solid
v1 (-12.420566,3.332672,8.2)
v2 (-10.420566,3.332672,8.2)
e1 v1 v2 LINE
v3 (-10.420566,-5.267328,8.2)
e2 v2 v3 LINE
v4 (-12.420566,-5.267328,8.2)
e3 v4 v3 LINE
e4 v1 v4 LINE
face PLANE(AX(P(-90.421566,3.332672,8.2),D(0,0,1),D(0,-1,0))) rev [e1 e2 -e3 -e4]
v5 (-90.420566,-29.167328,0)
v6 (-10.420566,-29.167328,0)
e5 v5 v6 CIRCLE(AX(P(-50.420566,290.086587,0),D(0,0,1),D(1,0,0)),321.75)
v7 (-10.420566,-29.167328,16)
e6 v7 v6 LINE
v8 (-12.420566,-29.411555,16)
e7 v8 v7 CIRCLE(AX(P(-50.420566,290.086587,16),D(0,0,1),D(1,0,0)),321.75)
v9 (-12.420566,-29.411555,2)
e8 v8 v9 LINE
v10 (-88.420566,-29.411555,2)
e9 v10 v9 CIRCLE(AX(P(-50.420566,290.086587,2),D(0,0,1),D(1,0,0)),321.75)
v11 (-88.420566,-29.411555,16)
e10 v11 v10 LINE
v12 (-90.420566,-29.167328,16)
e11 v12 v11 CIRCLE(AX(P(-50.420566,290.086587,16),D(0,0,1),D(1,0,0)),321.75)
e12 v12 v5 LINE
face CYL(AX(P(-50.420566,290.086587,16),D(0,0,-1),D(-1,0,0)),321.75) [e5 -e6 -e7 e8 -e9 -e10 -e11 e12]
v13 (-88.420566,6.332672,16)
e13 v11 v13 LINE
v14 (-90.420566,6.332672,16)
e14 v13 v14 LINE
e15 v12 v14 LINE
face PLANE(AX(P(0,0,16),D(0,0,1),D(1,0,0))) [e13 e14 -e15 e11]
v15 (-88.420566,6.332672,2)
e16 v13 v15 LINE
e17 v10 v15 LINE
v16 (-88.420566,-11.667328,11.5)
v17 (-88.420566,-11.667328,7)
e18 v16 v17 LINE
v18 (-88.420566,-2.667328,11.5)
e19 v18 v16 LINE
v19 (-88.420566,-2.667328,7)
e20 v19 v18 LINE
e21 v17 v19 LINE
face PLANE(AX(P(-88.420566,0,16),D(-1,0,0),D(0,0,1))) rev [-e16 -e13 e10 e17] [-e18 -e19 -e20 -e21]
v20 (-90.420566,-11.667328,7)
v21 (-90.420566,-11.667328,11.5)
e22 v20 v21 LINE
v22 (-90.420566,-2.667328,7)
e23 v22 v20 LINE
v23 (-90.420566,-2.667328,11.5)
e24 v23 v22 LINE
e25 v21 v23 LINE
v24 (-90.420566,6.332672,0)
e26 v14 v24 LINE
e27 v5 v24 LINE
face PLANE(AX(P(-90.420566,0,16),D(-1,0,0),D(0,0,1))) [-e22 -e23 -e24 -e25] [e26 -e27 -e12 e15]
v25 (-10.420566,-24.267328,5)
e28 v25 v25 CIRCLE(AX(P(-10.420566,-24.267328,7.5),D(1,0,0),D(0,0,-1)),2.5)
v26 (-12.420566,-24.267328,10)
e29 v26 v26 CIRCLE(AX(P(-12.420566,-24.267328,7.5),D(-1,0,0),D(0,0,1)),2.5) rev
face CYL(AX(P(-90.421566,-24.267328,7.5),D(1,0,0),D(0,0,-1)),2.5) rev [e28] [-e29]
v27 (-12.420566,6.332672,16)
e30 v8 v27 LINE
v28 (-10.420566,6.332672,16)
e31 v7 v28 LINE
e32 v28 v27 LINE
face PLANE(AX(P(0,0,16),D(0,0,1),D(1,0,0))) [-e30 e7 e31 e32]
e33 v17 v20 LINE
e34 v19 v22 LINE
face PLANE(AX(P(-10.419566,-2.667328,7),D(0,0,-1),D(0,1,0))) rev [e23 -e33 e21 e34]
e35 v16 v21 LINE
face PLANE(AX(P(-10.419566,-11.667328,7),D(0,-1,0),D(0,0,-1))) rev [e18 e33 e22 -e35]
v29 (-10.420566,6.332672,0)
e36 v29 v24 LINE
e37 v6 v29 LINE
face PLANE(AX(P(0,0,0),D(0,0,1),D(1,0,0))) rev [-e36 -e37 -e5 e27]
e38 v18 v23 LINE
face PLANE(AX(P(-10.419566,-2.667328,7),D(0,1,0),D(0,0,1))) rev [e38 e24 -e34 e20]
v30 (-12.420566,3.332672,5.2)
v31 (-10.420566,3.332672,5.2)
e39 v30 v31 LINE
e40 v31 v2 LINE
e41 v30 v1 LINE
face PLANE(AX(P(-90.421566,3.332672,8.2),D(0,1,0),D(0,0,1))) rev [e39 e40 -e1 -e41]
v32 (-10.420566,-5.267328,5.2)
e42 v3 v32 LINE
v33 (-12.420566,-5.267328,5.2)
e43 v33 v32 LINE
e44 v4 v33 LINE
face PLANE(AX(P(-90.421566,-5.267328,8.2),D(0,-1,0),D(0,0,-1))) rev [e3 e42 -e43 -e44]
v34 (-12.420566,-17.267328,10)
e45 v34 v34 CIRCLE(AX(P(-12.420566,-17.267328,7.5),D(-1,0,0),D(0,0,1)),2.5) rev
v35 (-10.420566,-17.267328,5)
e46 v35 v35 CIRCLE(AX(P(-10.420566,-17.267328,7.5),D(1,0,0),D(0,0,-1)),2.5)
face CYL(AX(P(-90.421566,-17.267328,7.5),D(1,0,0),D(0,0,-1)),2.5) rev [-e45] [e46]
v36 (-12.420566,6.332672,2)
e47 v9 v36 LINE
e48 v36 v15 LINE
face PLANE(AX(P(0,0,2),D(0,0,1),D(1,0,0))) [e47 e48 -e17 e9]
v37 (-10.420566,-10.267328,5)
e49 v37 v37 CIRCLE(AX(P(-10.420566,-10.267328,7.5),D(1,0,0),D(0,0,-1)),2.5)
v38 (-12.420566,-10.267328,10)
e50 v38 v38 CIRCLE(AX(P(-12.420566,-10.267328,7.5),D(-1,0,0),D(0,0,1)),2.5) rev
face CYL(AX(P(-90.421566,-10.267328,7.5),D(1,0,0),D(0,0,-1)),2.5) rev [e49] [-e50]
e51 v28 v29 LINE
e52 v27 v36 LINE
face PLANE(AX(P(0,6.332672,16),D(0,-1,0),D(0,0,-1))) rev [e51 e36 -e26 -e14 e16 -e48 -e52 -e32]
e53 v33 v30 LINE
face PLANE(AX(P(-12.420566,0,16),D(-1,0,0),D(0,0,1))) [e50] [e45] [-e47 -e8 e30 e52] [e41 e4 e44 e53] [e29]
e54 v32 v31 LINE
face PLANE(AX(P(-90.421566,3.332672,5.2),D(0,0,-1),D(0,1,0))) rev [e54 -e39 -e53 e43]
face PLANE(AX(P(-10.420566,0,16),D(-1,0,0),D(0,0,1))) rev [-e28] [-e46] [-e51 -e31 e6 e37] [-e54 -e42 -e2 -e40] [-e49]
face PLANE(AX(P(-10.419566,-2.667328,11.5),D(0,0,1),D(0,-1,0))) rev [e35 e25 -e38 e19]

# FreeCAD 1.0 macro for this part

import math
import FreeCAD as App
import Part
import Sketcher
from FreeCAD import Vector
Q = App.Units.Quantity


def faces_at(feature, points):
    """Names of the faces that lie closest to the given points."""
    faces = feature.Shape.Faces
    near = lambda p: min(range(len(faces)), key=lambda i: faces[i].distToShape(Part.Vertex(*p))[0])
    return sorted({f"Face{near(p) + 1}" for p in points})

doc = App.newDocument("Part")
body = doc.addObject("PartDesign::Body", "Body")

sketch1 = body.newObject("Sketcher::SketchObject", "Sketch")
sketch1.AttachmentSupport = (doc.getObject("XY_Plane"), [""])
sketch1.MapMode = "FlatFace"
sketch1.addGeometry(Part.LineSegment(Vector(-90.420566, 6.332672, 0), Vector(-90.420566, -29.167328, 0)), False)
sketch1.addGeometry(Part.ArcOfCircle(Part.Circle(Vector(-50.420566, 290.086587, 0), Vector(0, 0, 1), 321.75), math.radians(-97.141496), math.radians(-82.858504)), False)
sketch1.addGeometry(Part.LineSegment(Vector(-10.420566, -29.167328, 0), Vector(-10.420566, 6.332672, 0)), False)
sketch1.addGeometry(Part.LineSegment(Vector(-10.420566, 6.332672, 0), Vector(-90.420566, 6.332672, 0)), False)
sketch1.addConstraint(Sketcher.Constraint("Coincident", 0, 2, 1, 1))
sketch1.addConstraint(Sketcher.Constraint("Coincident", 1, 2, 2, 1))
sketch1.addConstraint(Sketcher.Constraint("Coincident", 2, 2, 3, 1))
sketch1.addConstraint(Sketcher.Constraint("Coincident", 3, 2, 0, 1))
sketch1.addConstraint(Sketcher.Constraint("Vertical", 0))
sketch1.addConstraint(Sketcher.Constraint("Vertical", 2))
sketch1.addConstraint(Sketcher.Constraint("Horizontal", 3))
sketch1.addConstraint(Sketcher.Constraint("Horizontal", 0, 2, 1, 2))
sketch1.addConstraint(Sketcher.Constraint("DistanceX", 3, 2, 3, 1, Q("80 mm")))
sketch1.addConstraint(Sketcher.Constraint("Radius", 1, Q("321.75 mm")))
sketch1.addConstraint(Sketcher.Constraint("DistanceY", 0, 2, 0, 1, Q("35.5 mm")))
sketch1.addConstraint(Sketcher.Constraint("DistanceY", 0, 2, -1, 1, Q("29.167328 mm")))
sketch1.addConstraint(Sketcher.Constraint("DistanceX", 1, 3, -1, 1, Q("50.420566 mm")))
pad1 = body.newObject("PartDesign::Pad", "Pad")
pad1.Profile = sketch1
pad1.Length = 16
doc.recompute()

thickness = body.newObject("PartDesign::Thickness", "Thickness")
thickness.Base = (pad1, faces_at(pad1, [(-50.421, -12.665, 16), (-50.421, 6.333, 8), (-50.421, -31.663, 8)]))
thickness.Value = 2
thickness.Reversed = True
thickness.Join = "Intersection"

sketch2 = body.newObject("Sketcher::SketchObject", "Sketch001")
sketch2.AttachmentSupport = (doc.getObject("YZ_Plane"), [""])
sketch2.MapMode = "FlatFace"
sketch2.AttachmentOffset = App.Placement(Vector(0, 0, -90.420566), App.Rotation())
sketch2.addGeometry(Part.LineSegment(Vector(-2.667328, 7, 0), Vector(-11.667328, 7, 0)), False)
sketch2.addGeometry(Part.LineSegment(Vector(-11.667328, 7, 0), Vector(-11.667328, 11.5, 0)), False)
sketch2.addGeometry(Part.LineSegment(Vector(-11.667328, 11.5, 0), Vector(-2.667328, 11.5, 0)), False)
sketch2.addGeometry(Part.LineSegment(Vector(-2.667328, 11.5, 0), Vector(-2.667328, 7, 0)), False)
sketch2.addConstraint(Sketcher.Constraint("Coincident", 0, 2, 1, 1))
sketch2.addConstraint(Sketcher.Constraint("Coincident", 1, 2, 2, 1))
sketch2.addConstraint(Sketcher.Constraint("Coincident", 2, 2, 3, 1))
sketch2.addConstraint(Sketcher.Constraint("Coincident", 3, 2, 0, 1))
sketch2.addConstraint(Sketcher.Constraint("Horizontal", 0))
sketch2.addConstraint(Sketcher.Constraint("Vertical", 1))
sketch2.addConstraint(Sketcher.Constraint("Horizontal", 2))
sketch2.addConstraint(Sketcher.Constraint("Vertical", 3))
sketch2.addConstraint(Sketcher.Constraint("DistanceX", 0, 2, 0, 1, Q("9 mm")))
sketch2.addConstraint(Sketcher.Constraint("DistanceY", 1, 1, 1, 2, Q("4.5 mm")))
sketch2.addConstraint(Sketcher.Constraint("DistanceY", -1, 1, 0, 2, Q("7 mm")))
sketch2.addConstraint(Sketcher.Constraint("DistanceX", 0, 2, -1, 1, Q("11.667328 mm")))
pocket1 = body.newObject("PartDesign::Pocket", "Pocket")
pocket1.Profile = sketch2
pocket1.Type = "UpToFirst"
pocket1.Reversed = True

sketch3 = body.newObject("Sketcher::SketchObject", "Sketch002")
sketch3.AttachmentSupport = (doc.getObject("YZ_Plane"), [""])
sketch3.MapMode = "FlatFace"
sketch3.AttachmentOffset = App.Placement(Vector(0, 0, -10.420566), App.Rotation())
sketch3.addGeometry(Part.Circle(Vector(-10.267328, 7.5, 0), Vector(0, 0, 1), 2.5), False)
sketch3.addConstraint(Sketcher.Constraint("Diameter", 0, Q("5 mm")))
sketch3.addConstraint(Sketcher.Constraint("DistanceY", -1, 1, 0, 3, Q("7.5 mm")))
sketch3.addConstraint(Sketcher.Constraint("DistanceX", 0, 3, -1, 1, Q("10.267328 mm")))
pocket2 = body.newObject("PartDesign::Pocket", "Pocket001")
pocket2.Profile = sketch3
pocket2.Type = "UpToFirst"

sketch4 = body.newObject("Sketcher::SketchObject", "Sketch003")
sketch4.AttachmentSupport = (doc.getObject("YZ_Plane"), [""])
sketch4.MapMode = "FlatFace"
sketch4.AttachmentOffset = App.Placement(Vector(0, 0, -10.420566), App.Rotation())
sketch4.addGeometry(Part.Circle(Vector(-17.267328, 7.5, 0), Vector(0, 0, 1), 2.5), False)
sketch4.addConstraint(Sketcher.Constraint("Diameter", 0, Q("5 mm")))
sketch4.addConstraint(Sketcher.Constraint("DistanceY", -1, 1, 0, 3, Q("7.5 mm")))
sketch4.addConstraint(Sketcher.Constraint("DistanceX", 0, 3, -1, 1, Q("17.267328 mm")))
pocket3 = body.newObject("PartDesign::Pocket", "Pocket002")
pocket3.Profile = sketch4
pocket3.Type = "UpToFirst"

sketch5 = body.newObject("Sketcher::SketchObject", "Sketch004")
sketch5.AttachmentSupport = (doc.getObject("YZ_Plane"), [""])
sketch5.MapMode = "FlatFace"
sketch5.AttachmentOffset = App.Placement(Vector(0, 0, -10.420566), App.Rotation())
sketch5.addGeometry(Part.Circle(Vector(-24.267328, 7.5, 0), Vector(0, 0, 1), 2.5), False)
sketch5.addConstraint(Sketcher.Constraint("Diameter", 0, Q("5 mm")))
sketch5.addConstraint(Sketcher.Constraint("DistanceY", -1, 1, 0, 3, Q("7.5 mm")))
sketch5.addConstraint(Sketcher.Constraint("DistanceX", 0, 3, -1, 1, Q("24.267328 mm")))
pocket4 = body.newObject("PartDesign::Pocket", "Pocket003")
pocket4.Profile = sketch5
pocket4.Type = "UpToFirst"

sketch6 = body.newObject("Sketcher::SketchObject", "Sketch005")
sketch6.AttachmentSupport = (doc.getObject("YZ_Plane"), [""])
sketch6.MapMode = "FlatFace"
sketch6.AttachmentOffset = App.Placement(Vector(0, 0, -10.420566), App.Rotation())
sketch6.addGeometry(Part.LineSegment(Vector(3.332672, 8.2, 0), Vector(-5.267328, 8.2, 0)), False)
sketch6.addGeometry(Part.LineSegment(Vector(-5.267328, 8.2, 0), Vector(-5.267328, 5.2, 0)), False)
sketch6.addGeometry(Part.LineSegment(Vector(-5.267328, 5.2, 0), Vector(3.332672, 5.2, 0)), False)
sketch6.addGeometry(Part.LineSegment(Vector(3.332672, 5.2, 0), Vector(3.332672, 8.2, 0)), False)
sketch6.addConstraint(Sketcher.Constraint("Coincident", 0, 2, 1, 1))
sketch6.addConstraint(Sketcher.Constraint("Coincident", 1, 2, 2, 1))
sketch6.addConstraint(Sketcher.Constraint("Coincident", 2, 2, 3, 1))
sketch6.addConstraint(Sketcher.Constraint("Coincident", 3, 2, 0, 1))
sketch6.addConstraint(Sketcher.Constraint("Horizontal", 0))
sketch6.addConstraint(Sketcher.Constraint("Vertical", 1))
sketch6.addConstraint(Sketcher.Constraint("Horizontal", 2))
sketch6.addConstraint(Sketcher.Constraint("Vertical", 3))
sketch6.addConstraint(Sketcher.Constraint("DistanceY", 1, 2, 1, 1, Q("3 mm")))
sketch6.addConstraint(Sketcher.Constraint("DistanceX", 0, 2, 0, 1, Q("8.6 mm")))
sketch6.addConstraint(Sketcher.Constraint("DistanceY", -1, 1, 0, 2, Q("8.2 mm")))
sketch6.addConstraint(Sketcher.Constraint("DistanceX", 0, 2, -1, 1, Q("5.267328 mm")))
pocket5 = body.newObject("PartDesign::Pocket", "Pocket004")
pocket5.Profile = sketch6
pocket5.Type = "UpToFirst"

doc.recompute()
